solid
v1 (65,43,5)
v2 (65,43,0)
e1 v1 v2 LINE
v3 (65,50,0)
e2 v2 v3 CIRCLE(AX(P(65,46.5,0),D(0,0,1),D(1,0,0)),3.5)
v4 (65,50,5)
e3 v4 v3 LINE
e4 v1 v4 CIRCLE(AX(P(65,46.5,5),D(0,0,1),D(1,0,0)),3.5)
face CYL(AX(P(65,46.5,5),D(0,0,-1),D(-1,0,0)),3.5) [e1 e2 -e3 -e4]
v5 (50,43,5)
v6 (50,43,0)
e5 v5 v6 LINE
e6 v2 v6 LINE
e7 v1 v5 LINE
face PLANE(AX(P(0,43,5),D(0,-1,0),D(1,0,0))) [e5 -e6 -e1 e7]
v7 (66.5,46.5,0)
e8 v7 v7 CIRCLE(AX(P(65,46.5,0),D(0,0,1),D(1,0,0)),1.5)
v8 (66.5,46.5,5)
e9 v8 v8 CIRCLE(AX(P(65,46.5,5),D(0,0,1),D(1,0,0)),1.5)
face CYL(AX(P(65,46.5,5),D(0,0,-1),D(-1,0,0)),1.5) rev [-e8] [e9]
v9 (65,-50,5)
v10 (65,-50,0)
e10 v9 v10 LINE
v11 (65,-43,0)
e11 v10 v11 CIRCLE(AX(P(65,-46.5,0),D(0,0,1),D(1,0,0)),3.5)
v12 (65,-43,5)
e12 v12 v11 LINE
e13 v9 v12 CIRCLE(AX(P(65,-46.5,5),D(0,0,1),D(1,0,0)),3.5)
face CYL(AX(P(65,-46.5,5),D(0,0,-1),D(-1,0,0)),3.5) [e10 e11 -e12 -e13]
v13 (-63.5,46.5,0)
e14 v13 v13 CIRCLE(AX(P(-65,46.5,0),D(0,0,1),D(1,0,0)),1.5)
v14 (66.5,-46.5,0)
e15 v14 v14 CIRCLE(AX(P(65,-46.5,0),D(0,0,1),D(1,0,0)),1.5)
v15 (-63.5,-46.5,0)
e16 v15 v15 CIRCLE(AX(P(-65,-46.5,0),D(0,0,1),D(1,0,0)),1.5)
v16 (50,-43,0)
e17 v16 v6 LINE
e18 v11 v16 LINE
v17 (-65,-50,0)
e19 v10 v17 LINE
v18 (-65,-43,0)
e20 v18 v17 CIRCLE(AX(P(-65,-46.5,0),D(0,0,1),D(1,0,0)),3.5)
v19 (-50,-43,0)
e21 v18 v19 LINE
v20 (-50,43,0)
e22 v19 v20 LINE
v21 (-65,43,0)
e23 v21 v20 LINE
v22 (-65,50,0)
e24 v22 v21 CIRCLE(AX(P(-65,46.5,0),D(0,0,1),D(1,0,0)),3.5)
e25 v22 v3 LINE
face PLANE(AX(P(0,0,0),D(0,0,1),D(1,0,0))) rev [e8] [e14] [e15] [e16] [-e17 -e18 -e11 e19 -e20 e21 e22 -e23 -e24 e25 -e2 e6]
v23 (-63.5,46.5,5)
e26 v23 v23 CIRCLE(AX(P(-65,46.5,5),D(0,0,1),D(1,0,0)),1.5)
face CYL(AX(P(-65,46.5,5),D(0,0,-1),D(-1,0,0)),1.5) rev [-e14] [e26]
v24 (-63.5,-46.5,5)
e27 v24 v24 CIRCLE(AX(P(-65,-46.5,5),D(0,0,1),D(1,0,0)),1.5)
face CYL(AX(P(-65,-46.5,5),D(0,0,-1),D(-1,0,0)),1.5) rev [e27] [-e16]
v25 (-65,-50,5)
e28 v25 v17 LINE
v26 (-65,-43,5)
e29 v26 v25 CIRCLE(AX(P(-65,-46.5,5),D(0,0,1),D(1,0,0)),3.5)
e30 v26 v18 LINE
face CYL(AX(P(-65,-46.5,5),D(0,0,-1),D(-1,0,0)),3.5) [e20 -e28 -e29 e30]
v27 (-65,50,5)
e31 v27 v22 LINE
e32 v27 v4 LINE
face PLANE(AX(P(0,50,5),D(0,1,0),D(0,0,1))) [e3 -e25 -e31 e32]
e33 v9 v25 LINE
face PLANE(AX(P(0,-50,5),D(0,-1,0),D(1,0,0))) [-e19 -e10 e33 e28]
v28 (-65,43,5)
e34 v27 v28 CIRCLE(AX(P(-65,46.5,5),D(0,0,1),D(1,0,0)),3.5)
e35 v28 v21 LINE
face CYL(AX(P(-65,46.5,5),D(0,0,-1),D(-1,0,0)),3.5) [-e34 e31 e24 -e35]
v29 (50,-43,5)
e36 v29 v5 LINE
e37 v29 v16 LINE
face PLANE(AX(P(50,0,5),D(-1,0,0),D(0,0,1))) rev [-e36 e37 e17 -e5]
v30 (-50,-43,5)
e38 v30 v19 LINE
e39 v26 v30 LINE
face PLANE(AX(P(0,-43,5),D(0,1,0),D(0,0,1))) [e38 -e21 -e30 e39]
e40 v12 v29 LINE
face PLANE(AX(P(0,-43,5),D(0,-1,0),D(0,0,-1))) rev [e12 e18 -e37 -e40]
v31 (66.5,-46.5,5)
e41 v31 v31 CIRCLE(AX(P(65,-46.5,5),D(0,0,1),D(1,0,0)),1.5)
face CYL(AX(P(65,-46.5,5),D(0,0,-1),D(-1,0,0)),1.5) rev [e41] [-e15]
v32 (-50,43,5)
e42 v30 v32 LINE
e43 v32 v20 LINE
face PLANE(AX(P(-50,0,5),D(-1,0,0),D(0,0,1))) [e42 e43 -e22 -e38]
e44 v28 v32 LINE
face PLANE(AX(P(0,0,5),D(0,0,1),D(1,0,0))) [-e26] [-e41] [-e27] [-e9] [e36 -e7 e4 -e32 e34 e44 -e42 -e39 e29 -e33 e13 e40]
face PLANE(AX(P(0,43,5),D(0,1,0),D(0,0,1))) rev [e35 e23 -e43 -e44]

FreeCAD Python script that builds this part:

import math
import FreeCAD as App
import Part
import Sketcher
Q = App.Units.Quantity

doc = App.newDocument("Part")
body = doc.addObject("PartDesign::Body", "Body")

# Sketch on XY plane
sketch1 = body.newObject("Sketcher::SketchObject", "Sketch")
sketch1.AttachmentSupport = (doc.getObject("XY_Plane"), [""])
sketch1.MapMode = "FlatFace"
sketch1.addGeometry(Part.LineSegment(App.Vector(-50, -43, 0), App.Vector(-65, -43, 0)), False)
sketch1.addGeometry(Part.ArcOfCircle(Part.Circle(App.Vector(-65, -46.5, 0), App.Vector(0, 0, 1), 3.5), math.radians(90), math.radians(270)), False)
sketch1.addGeometry(Part.LineSegment(App.Vector(-65, -50, 0), App.Vector(65, -50, 0)), False)
sketch1.addGeometry(Part.ArcOfCircle(Part.Circle(App.Vector(65, -46.5, 0), App.Vector(0, 0, 1), 3.5), math.radians(-90), math.radians(90)), False)
sketch1.addGeometry(Part.LineSegment(App.Vector(65, -43, 0), App.Vector(50, -43, 0)), False)
sketch1.addGeometry(Part.LineSegment(App.Vector(50, -43, 0), App.Vector(50, 43, 0)), False)
sketch1.addGeometry(Part.LineSegment(App.Vector(50, 43, 0), App.Vector(65, 43, 0)), False)
sketch1.addGeometry(Part.ArcOfCircle(Part.Circle(App.Vector(65, 46.5, 0), App.Vector(0, 0, 1), 3.5), math.radians(-90), math.radians(90)), False)
sketch1.addGeometry(Part.LineSegment(App.Vector(65, 50, 0), App.Vector(-65, 50, 0)), False)
sketch1.addGeometry(Part.ArcOfCircle(Part.Circle(App.Vector(-65, 46.5, 0), App.Vector(0, 0, 1), 3.5), math.radians(90), math.radians(270)), False)
sketch1.addGeometry(Part.LineSegment(App.Vector(-65, 43, 0), App.Vector(-50, 43, 0)), False)
sketch1.addGeometry(Part.LineSegment(App.Vector(-50, 43, 0), App.Vector(-50, -43, 0)), False)
sketch1.addGeometry(Part.Circle(App.Vector(65, -46.5, 0), App.Vector(0, 0, 1), 1.5), False)
sketch1.addGeometry(Part.Circle(App.Vector(-65, -46.5, 0), App.Vector(0, 0, 1), 1.5), False)
sketch1.addGeometry(Part.Circle(App.Vector(65, 46.5, 0), App.Vector(0, 0, 1), 1.5), False)
sketch1.addGeometry(Part.Circle(App.Vector(-65, 46.5, 0), App.Vector(0, 0, 1), 1.5), False)
sketch1.addConstraint(Sketcher.Constraint("Tangent", 0, 2, 1, 1))
sketch1.addConstraint(Sketcher.Constraint("Tangent", 1, 2, 2, 1))
sketch1.addConstraint(Sketcher.Constraint("Tangent", 2, 2, 3, 1))
sketch1.addConstraint(Sketcher.Constraint("Tangent", 3, 2, 4, 1))
sketch1.addConstraint(Sketcher.Constraint("Coincident", 4, 2, 5, 1))
sketch1.addConstraint(Sketcher.Constraint("Coincident", 5, 2, 6, 1))
sketch1.addConstraint(Sketcher.Constraint("Tangent", 6, 2, 7, 1))
sketch1.addConstraint(Sketcher.Constraint("Tangent", 7, 2, 8, 1))
sketch1.addConstraint(Sketcher.Constraint("Tangent", 8, 2, 9, 1))
sketch1.addConstraint(Sketcher.Constraint("Tangent", 9, 2, 10, 1))
sketch1.addConstraint(Sketcher.Constraint("Coincident", 10, 2, 11, 1))
sketch1.addConstraint(Sketcher.Constraint("Coincident", 11, 2, 0, 1))
sketch1.addConstraint(Sketcher.Constraint("Horizontal", 0))
sketch1.addConstraint(Sketcher.Constraint("Horizontal", 2))
sketch1.addConstraint(Sketcher.Constraint("Horizontal", 4))
sketch1.addConstraint(Sketcher.Constraint("Vertical", 5))
sketch1.addConstraint(Sketcher.Constraint("Horizontal", 6))
sketch1.addConstraint(Sketcher.Constraint("Horizontal", 8))
sketch1.addConstraint(Sketcher.Constraint("Horizontal", 10))
sketch1.addConstraint(Sketcher.Constraint("Vertical", 11))
sketch1.addConstraint(Sketcher.Constraint("Coincident", 12, 3, 3, 3))
sketch1.addConstraint(Sketcher.Constraint("Coincident", 13, 3, 1, 3))
sketch1.addConstraint(Sketcher.Constraint("Coincident", 14, 3, 7, 3))
sketch1.addConstraint(Sketcher.Constraint("Coincident", 15, 3, 9, 3))
sketch1.addConstraint(Sketcher.Constraint("Equal", 1, 3))
sketch1.addConstraint(Sketcher.Constraint("Equal", 3, 7))
sketch1.addConstraint(Sketcher.Constraint("Equal", 7, 9))
sketch1.addConstraint(Sketcher.Constraint("Equal", 12, 13))
sketch1.addConstraint(Sketcher.Constraint("Equal", 13, 14))
sketch1.addConstraint(Sketcher.Constraint("Equal", 14, 15))
sketch1.addConstraint(Sketcher.Constraint("Symmetric", 1, 3, 7, 3, -1, 1))
sketch1.addConstraint(Sketcher.Constraint("Vertical", 3, 3, 7, 3))
sketch1.addConstraint(Sketcher.Constraint("Vertical", 1, 3, 9, 3))
sketch1.addConstraint(Sketcher.Constraint("Equal", 0, 4))
sketch1.addConstraint(Sketcher.Constraint("Diameter", 12, Q("3 mm")))
sketch1.addConstraint(Sketcher.Constraint("Radius", 1, Q("3.5 mm")))
sketch1.addConstraint(Sketcher.Constraint("DistanceX", 0, 2, 0, 1, Q("15 mm")))
sketch1.addConstraint(Sketcher.Constraint("DistanceX", 2, 1, 2, 2, Q("130 mm")))
sketch1.addConstraint(Sketcher.Constraint("DistanceY", 5, 1, 5, 2, Q("86 mm")))
pad1 = body.newObject("PartDesign::Pad", "Pad")
pad1.Profile = sketch1
pad1.Length = 5

doc.recompute()
